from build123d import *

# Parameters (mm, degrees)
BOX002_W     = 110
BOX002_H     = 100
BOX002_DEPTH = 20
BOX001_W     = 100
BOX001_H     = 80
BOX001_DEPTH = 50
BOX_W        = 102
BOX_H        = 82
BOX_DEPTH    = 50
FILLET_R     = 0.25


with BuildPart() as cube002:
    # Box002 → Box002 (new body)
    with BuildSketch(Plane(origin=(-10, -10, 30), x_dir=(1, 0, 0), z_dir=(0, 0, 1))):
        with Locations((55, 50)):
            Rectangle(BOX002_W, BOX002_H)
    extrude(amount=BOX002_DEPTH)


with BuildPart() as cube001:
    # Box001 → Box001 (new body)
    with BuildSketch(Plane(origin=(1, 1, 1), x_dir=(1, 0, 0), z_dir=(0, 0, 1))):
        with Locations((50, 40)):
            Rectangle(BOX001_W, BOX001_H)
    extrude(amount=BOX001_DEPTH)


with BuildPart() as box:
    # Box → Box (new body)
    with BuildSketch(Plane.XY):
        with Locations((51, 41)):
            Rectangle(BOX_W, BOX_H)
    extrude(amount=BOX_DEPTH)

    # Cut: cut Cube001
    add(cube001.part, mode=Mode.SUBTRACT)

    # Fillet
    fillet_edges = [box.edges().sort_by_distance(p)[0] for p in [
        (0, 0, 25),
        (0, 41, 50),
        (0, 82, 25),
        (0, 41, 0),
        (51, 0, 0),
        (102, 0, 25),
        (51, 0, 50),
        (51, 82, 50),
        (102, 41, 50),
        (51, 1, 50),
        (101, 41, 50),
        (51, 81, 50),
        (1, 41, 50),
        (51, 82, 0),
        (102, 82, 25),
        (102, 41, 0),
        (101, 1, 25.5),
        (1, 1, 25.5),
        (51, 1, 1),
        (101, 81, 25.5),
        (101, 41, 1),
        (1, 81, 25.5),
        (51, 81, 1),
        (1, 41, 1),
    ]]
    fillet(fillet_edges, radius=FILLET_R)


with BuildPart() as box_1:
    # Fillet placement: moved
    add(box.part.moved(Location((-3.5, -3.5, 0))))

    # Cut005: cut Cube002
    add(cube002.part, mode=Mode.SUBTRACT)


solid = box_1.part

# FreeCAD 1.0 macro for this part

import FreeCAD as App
import Part
import Sketcher
Q = App.Units.Quantity


def add_polygon(sketch, points):
    """Adds a closed chain of lines whose ends are joined by coincident constraints."""
    first, n = sketch.GeometryCount, len(points)
    for a, b in zip(points, points[1:] + points[:1]):
        sketch.addGeometry(Part.LineSegment(App.Vector(*a, 0), App.Vector(*b, 0)), False)
    for i in range(n):
        sketch.addConstraint(Sketcher.Constraint("Coincident", first + i, 2, first + (i + 1) % n, 1))

doc = App.newDocument("Part")
body = doc.addObject("PartDesign::Body", "Body")

sketch1 = doc.addObject("Sketcher::SketchObject", "Sketch")
body.addObject(sketch1)
sketch1.AttachmentSupport = (doc.XY_Plane, [""])
sketch1.MapMode = "FlatFace"
sketch1.AttachmentOffset = App.Placement(App.Vector(0, 0, 30), App.Rotation())
add_polygon(sketch1, [(-10, 90), (-10, -10), (100, -10), (100, 90)])
sketch1.addConstraint([
    Sketcher.Constraint("Vertical", 0),
    Sketcher.Constraint("Horizontal", 1),
    Sketcher.Constraint("Vertical", 2),
    Sketcher.Constraint("Horizontal", 3),
    Sketcher.Constraint("DistanceX", 1, 1, 1, 2, Q("110 mm")),
    Sketcher.Constraint("DistanceY", 0, 2, 0, 1, Q("100 mm")),
    Sketcher.Constraint("DistanceX", 0, 2, -1, 1, Q("10 mm")),
    Sketcher.Constraint("DistanceY", 0, 2, -1, 1, Q("10 mm")),
])
pad1 = doc.addObject("PartDesign::Pad", "Pad")
body.addObject(pad1)
pad1.Profile = sketch1
pad1.Length = 20
body2 = doc.addObject("PartDesign::Body", "Body001")

sketch2 = doc.addObject("Sketcher::SketchObject", "Sketch001")
body2.addObject(sketch2)
sketch2.AttachmentSupport = (doc.getObject("XY_Plane001"), [""])
sketch2.MapMode = "FlatFace"
sketch2.AttachmentOffset = App.Placement(App.Vector(0, 0, 1), App.Rotation())
add_polygon(sketch2, [(1, 81), (1, 1), (101, 1), (101, 81)])
sketch2.addConstraint([
    Sketcher.Constraint("Vertical", 0),
    Sketcher.Constraint("Horizontal", 1),
    Sketcher.Constraint("Vertical", 2),
    Sketcher.Constraint("Horizontal", 3),
    Sketcher.Constraint("DistanceX", 1, 1, 1, 2, Q("100 mm")),
    Sketcher.Constraint("DistanceY", 0, 2, 0, 1, Q("80 mm")),
    Sketcher.Constraint("DistanceX", -1, 1, 0, 2, Q("1 mm")),
    Sketcher.Constraint("DistanceY", -1, 1, 0, 2, Q("1 mm")),
])
pad2 = doc.addObject("PartDesign::Pad", "Pad001")
body2.addObject(pad2)
pad2.Profile = sketch2
pad2.Length = 50
body3 = doc.addObject("PartDesign::Body", "Body002")

sketch3 = doc.addObject("Sketcher::SketchObject", "Sketch002")
body3.addObject(sketch3)
sketch3.AttachmentSupport = (doc.getObject("XY_Plane002"), [""])
sketch3.MapMode = "FlatFace"
add_polygon(sketch3, [(0, 82), (0, 0), (102, 0), (102, 82)])
sketch3.addConstraint([
    Sketcher.Constraint("Vertical", 0),
    Sketcher.Constraint("Horizontal", 1),
    Sketcher.Constraint("Vertical", 2),
    Sketcher.Constraint("Horizontal", 3),
    Sketcher.Constraint("Coincident", 0, 2, -1, 1),
    Sketcher.Constraint("DistanceX", 1, 1, 1, 2, Q("102 mm")),
    Sketcher.Constraint("DistanceY", 0, 2, 0, 1, Q("82 mm")),
])
pad3 = doc.addObject("PartDesign::Pad", "Pad002")
body3.addObject(pad3)
pad3.Profile = sketch3
pad3.Length = 50
doc.recompute()

boolean = doc.addObject("PartDesign::Boolean", "Boolean")
body3.addObject(boolean)
boolean.Type = "Cut"
boolean.addObjects([body2])
doc.recompute()

fillet = doc.addObject("PartDesign::Fillet", "Fillet")
body3.addObject(fillet)
fillet.Base = (boolean, ["Edge1"])
fillet.UseAllEdges = True
fillet.Radius = 0.25
body4 = doc.addObject("PartDesign::Body", "Body003")
doc.recompute()

body3.Placement = App.Placement(App.Vector(-3.5, -3.5, 0), App.Rotation(App.Vector(0, 0, 1), 0))
boolean2 = doc.addObject("PartDesign::Boolean", "Boolean001")
body4.addObject(boolean2)
boolean2.Type = "Fuse"
boolean2.addObjects([body3])
doc.recompute()

boolean3 = doc.addObject("PartDesign::Boolean", "Boolean002")
body4.addObject(boolean3)
boolean3.Type = "Cut"
boolean3.addObjects([body])

doc.recompute()
